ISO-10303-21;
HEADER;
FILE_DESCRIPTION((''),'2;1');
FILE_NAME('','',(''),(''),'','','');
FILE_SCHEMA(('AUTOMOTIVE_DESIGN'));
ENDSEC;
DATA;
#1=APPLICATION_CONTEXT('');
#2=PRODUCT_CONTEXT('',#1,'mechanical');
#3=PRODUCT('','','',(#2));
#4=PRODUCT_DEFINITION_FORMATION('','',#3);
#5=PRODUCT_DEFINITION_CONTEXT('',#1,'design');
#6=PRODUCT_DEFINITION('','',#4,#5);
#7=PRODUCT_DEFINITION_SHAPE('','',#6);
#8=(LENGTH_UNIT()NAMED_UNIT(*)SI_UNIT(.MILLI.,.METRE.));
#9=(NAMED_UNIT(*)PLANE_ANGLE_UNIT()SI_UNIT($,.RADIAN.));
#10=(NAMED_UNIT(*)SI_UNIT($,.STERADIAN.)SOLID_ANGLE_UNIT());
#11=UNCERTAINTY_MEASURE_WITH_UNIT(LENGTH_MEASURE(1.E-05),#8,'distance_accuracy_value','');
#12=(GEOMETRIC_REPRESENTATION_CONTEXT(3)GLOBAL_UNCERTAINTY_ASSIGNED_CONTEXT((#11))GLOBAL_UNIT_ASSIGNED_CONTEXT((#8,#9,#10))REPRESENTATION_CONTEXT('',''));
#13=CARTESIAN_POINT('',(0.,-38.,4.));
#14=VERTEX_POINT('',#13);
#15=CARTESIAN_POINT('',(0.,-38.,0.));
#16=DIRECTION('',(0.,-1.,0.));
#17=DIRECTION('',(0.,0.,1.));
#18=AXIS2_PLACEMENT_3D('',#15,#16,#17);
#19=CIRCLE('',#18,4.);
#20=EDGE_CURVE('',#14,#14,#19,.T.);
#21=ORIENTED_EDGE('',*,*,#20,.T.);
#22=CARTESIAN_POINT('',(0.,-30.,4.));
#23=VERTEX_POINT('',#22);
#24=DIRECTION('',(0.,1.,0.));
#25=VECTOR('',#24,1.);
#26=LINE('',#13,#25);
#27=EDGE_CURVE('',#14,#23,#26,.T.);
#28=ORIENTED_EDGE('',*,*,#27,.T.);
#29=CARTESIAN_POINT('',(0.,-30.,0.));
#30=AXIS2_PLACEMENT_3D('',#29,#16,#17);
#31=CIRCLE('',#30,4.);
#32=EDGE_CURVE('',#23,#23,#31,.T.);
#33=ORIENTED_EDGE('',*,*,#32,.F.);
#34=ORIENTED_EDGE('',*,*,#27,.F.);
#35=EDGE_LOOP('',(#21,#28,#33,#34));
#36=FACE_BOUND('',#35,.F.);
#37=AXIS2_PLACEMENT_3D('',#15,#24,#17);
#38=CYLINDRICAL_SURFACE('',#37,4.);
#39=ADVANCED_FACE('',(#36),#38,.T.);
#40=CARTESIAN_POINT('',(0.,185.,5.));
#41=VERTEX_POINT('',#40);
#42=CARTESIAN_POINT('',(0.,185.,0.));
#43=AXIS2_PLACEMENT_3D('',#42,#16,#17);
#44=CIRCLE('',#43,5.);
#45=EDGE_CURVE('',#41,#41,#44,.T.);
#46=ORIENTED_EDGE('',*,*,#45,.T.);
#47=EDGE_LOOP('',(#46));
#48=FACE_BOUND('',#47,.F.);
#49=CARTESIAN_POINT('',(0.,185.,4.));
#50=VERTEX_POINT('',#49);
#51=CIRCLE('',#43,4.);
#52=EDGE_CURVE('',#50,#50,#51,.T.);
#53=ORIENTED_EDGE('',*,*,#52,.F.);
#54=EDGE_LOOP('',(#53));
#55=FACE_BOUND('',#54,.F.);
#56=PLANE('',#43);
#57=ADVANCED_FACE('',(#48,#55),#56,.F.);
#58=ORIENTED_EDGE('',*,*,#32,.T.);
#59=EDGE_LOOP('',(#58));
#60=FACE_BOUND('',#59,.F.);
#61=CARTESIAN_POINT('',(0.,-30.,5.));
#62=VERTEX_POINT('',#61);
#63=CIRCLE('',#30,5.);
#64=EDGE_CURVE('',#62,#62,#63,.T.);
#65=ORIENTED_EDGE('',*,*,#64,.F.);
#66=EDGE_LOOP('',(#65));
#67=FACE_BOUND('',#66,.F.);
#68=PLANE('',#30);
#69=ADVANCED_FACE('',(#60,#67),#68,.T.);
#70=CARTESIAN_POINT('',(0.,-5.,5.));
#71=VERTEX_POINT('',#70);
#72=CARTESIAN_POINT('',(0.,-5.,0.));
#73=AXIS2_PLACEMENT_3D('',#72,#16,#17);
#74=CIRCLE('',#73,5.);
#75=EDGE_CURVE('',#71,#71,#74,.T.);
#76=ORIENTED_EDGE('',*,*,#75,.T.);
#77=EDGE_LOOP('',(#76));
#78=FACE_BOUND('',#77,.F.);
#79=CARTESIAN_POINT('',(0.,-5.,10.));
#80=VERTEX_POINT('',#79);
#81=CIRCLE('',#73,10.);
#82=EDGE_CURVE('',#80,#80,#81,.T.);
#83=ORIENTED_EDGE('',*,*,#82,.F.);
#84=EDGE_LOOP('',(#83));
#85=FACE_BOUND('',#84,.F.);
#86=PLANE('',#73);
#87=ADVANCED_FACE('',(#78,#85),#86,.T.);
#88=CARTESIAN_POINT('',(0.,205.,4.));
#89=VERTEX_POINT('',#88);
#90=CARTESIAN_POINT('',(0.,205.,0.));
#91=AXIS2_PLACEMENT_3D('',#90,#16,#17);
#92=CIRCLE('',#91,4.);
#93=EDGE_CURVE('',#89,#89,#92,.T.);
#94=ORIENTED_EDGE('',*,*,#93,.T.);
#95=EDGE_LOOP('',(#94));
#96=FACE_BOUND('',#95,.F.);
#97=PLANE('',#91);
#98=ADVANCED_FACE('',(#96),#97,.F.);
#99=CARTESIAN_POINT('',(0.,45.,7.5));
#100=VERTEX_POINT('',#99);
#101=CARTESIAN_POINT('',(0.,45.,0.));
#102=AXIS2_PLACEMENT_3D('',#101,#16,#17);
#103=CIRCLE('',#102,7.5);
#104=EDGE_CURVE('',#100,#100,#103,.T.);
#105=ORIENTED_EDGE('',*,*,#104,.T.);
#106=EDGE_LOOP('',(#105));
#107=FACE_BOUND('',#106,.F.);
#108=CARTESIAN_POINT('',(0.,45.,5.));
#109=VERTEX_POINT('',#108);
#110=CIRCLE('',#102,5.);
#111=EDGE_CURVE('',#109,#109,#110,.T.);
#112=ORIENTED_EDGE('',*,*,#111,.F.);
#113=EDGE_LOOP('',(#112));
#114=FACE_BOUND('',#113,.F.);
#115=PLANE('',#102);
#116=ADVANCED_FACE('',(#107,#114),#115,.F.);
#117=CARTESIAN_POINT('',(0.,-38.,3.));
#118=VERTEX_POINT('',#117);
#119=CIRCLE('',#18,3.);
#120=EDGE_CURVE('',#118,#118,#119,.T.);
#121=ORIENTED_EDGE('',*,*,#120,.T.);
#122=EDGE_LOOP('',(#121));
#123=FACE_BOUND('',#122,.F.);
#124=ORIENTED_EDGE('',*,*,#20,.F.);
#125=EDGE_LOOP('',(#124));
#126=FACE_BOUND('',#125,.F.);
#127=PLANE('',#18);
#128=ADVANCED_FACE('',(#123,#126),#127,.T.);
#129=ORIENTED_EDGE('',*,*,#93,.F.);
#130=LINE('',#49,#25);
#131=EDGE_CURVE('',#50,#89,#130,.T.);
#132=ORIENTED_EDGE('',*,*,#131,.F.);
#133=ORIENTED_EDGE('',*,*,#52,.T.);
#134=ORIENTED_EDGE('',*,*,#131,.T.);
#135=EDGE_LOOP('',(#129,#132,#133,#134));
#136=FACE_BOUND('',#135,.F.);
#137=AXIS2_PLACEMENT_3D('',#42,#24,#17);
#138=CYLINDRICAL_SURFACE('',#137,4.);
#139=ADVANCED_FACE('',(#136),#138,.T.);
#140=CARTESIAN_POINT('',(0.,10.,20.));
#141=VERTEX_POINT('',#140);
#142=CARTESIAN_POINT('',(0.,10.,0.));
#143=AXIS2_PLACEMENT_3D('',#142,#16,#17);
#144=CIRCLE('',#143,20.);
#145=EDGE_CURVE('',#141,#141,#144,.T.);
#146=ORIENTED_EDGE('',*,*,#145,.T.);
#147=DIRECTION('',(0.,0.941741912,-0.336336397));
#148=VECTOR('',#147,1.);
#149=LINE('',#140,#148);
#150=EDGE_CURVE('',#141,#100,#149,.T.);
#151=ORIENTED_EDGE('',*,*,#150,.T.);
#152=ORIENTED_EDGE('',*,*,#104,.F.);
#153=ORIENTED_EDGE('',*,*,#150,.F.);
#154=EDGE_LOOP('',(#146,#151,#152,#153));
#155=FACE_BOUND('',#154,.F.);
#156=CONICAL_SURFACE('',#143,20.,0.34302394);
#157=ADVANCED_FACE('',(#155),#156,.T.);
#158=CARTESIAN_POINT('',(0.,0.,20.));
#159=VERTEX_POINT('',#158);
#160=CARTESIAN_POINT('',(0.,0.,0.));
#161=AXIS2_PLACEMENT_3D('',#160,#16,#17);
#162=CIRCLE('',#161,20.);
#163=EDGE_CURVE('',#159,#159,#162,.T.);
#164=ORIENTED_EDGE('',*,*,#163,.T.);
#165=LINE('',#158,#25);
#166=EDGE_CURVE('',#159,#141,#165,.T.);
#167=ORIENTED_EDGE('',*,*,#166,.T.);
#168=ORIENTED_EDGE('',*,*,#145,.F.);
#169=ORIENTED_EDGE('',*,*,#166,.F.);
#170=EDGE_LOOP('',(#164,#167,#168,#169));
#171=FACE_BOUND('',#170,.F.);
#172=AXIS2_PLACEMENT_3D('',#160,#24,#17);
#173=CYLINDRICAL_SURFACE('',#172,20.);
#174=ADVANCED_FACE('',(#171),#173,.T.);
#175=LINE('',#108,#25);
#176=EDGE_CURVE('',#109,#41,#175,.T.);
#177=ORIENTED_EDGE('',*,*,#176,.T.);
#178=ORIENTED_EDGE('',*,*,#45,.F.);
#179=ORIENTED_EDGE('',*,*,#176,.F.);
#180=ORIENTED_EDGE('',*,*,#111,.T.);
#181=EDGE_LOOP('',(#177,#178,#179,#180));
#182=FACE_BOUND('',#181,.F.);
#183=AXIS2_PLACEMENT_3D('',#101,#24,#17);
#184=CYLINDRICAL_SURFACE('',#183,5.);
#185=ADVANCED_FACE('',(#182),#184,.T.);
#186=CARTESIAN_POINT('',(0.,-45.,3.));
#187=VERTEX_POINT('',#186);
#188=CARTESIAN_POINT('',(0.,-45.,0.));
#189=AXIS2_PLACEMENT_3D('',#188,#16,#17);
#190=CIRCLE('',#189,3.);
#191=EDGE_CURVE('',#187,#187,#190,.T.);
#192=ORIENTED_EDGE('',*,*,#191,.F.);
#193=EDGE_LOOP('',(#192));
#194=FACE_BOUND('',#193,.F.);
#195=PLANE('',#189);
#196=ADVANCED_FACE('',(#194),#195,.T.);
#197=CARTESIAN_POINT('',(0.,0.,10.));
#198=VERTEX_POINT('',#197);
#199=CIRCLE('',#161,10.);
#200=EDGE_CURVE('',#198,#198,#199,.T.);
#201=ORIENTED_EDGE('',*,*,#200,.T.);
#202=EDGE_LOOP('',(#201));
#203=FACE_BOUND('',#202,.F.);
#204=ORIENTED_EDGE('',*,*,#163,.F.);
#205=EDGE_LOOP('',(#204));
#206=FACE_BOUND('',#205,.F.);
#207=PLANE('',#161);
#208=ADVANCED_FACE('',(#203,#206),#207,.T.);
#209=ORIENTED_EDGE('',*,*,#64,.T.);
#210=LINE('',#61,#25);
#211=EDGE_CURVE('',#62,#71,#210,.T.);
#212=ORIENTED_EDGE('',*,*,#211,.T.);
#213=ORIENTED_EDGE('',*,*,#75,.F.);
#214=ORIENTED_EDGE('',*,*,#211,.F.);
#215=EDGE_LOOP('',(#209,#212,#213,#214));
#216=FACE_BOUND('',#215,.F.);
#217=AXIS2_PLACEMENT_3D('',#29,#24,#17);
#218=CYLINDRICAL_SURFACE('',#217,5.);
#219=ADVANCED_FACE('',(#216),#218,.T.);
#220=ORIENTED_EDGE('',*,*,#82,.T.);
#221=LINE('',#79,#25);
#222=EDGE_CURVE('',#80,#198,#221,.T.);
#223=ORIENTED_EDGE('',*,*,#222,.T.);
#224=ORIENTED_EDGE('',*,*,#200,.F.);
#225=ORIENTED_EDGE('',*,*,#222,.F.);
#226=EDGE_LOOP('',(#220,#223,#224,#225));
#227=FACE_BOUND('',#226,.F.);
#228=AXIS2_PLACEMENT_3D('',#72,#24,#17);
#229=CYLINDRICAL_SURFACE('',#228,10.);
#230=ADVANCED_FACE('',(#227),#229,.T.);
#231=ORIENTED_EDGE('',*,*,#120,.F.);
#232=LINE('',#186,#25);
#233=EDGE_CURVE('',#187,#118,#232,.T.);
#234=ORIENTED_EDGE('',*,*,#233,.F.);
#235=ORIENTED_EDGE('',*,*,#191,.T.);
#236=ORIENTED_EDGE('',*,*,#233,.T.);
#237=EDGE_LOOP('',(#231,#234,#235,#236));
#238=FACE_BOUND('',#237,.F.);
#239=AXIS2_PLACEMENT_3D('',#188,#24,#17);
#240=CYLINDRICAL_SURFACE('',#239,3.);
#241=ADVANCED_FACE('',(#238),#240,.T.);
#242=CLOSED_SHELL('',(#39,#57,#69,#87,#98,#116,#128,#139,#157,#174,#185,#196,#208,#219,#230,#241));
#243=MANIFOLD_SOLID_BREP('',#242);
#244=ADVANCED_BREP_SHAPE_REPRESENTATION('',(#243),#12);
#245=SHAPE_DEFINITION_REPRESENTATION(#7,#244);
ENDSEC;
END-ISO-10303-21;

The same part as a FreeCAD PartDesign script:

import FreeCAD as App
import Part
import Sketcher

doc = App.newDocument("Part")
body = doc.addObject("PartDesign::Body", "Body")

sketch1 = body.newObject("Sketcher::SketchObject", "Sketch")
sketch1.AttachmentSupport = (doc.getObject("XY_Plane"), [""])
sketch1.MapMode = "FlatFace"
sketch1.addGeometry(Part.LineSegment(App.Vector(10, 0, 0), App.Vector(20, 0, 0)), False)
sketch1.addGeometry(Part.LineSegment(App.Vector(20, 0, 0), App.Vector(20, 10, 0)), False)
sketch1.addGeometry(Part.LineSegment(App.Vector(20, 10, 0), App.Vector(7.5, 45, 0)), False)
sketch1.addGeometry(Part.LineSegment(App.Vector(7.5, 45, 0), App.Vector(5, 45, 0)), False)
sketch1.addGeometry(Part.LineSegment(App.Vector(5, 45, 0), App.Vector(5, 185, 0)), False)
sketch1.addGeometry(Part.LineSegment(App.Vector(5, 185, 0), App.Vector(4, 185, 0)), False)
sketch1.addGeometry(Part.LineSegment(App.Vector(4, 185, 0), App.Vector(4, 205, 0)), False)
sketch1.addGeometry(Part.LineSegment(App.Vector(4, 205, 0), App.Vector(0, 205, 0)), False)
sketch1.addGeometry(Part.LineSegment(App.Vector(0, 205, 0), App.Vector(0, -45, 0)), False)
sketch1.addGeometry(Part.LineSegment(App.Vector(0, -45, 0), App.Vector(3, -45, 0)), False)
sketch1.addGeometry(Part.LineSegment(App.Vector(3, -45, 0), App.Vector(3, -38, 0)), False)
sketch1.addGeometry(Part.LineSegment(App.Vector(3, -38, 0), App.Vector(4, -38, 0)), False)
sketch1.addGeometry(Part.LineSegment(App.Vector(4, -38, 0), App.Vector(4, -30, 0)), False)
sketch1.addGeometry(Part.LineSegment(App.Vector(4, -30, 0), App.Vector(5, -30, 0)), False)
sketch1.addGeometry(Part.LineSegment(App.Vector(5, -30, 0), App.Vector(5, -5, 0)), False)
sketch1.addGeometry(Part.LineSegment(App.Vector(5, -5, 0), App.Vector(10, -5, 0)), False)
sketch1.addGeometry(Part.LineSegment(App.Vector(10, -5, 0), App.Vector(10, 0, 0)), False)
sketch1.addConstraint(Sketcher.Constraint("Coincident", 0, 2, 1, 1))
sketch1.addConstraint(Sketcher.Constraint("Coincident", 1, 2, 2, 1))
sketch1.addConstraint(Sketcher.Constraint("Coincident", 2, 2, 3, 1))
sketch1.addConstraint(Sketcher.Constraint("Coincident", 3, 2, 4, 1))
sketch1.addConstraint(Sketcher.Constraint("Coincident", 4, 2, 5, 1))
sketch1.addConstraint(Sketcher.Constraint("Coincident", 5, 2, 6, 1))
sketch1.addConstraint(Sketcher.Constraint("Coincident", 6, 2, 7, 1))
sketch1.addConstraint(Sketcher.Constraint("Coincident", 7, 2, 8, 1))
sketch1.addConstraint(Sketcher.Constraint("Coincident", 8, 2, 9, 1))
sketch1.addConstraint(Sketcher.Constraint("Coincident", 9, 2, 10, 1))
sketch1.addConstraint(Sketcher.Constraint("Coincident", 10, 2, 11, 1))
sketch1.addConstraint(Sketcher.Constraint("Coincident", 11, 2, 12, 1))
sketch1.addConstraint(Sketcher.Constraint("Coincident", 12, 2, 13, 1))
sketch1.addConstraint(Sketcher.Constraint("Coincident", 13, 2, 14, 1))
sketch1.addConstraint(Sketcher.Constraint("Coincident", 14, 2, 15, 1))
sketch1.addConstraint(Sketcher.Constraint("Coincident", 15, 2, 16, 1))
sketch1.addConstraint(Sketcher.Constraint("Coincident", 16, 2, 0, 1))
sketch1.addConstraint(Sketcher.Constraint("Horizontal", 0))
sketch1.addConstraint(Sketcher.Constraint("Vertical", 1))
sketch1.addConstraint(Sketcher.Constraint("Horizontal", 3))
sketch1.addConstraint(Sketcher.Constraint("Vertical", 4))
sketch1.addConstraint(Sketcher.Constraint("Horizontal", 5))
sketch1.addConstraint(Sketcher.Constraint("Vertical", 6))
sketch1.addConstraint(Sketcher.Constraint("Horizontal", 7))
sketch1.addConstraint(Sketcher.Constraint("Vertical", 8))
sketch1.addConstraint(Sketcher.Constraint("Horizontal", 9))
sketch1.addConstraint(Sketcher.Constraint("Vertical", 10))
sketch1.addConstraint(Sketcher.Constraint("Horizontal", 11))
sketch1.addConstraint(Sketcher.Constraint("Vertical", 12))
sketch1.addConstraint(Sketcher.Constraint("Horizontal", 13))
sketch1.addConstraint(Sketcher.Constraint("Vertical", 14))
sketch1.addConstraint(Sketcher.Constraint("Horizontal", 15))
sketch1.addConstraint(Sketcher.Constraint("Vertical", 16))
sketch1.addConstraint(Sketcher.Constraint("PointOnObject", 0, 2, -1))
sketch1.addConstraint(Sketcher.Constraint("PointOnObject", 7, 2, -2))
sketch1.addConstraint(Sketcher.Constraint("Vertical", 6, 2, 11, 2))
sketch1.addConstraint(Sketcher.Constraint("Vertical", 4, 2, 13, 2))
sketch1.addConstraint(Sketcher.Constraint("Equal", 5, 11))
sketch1.addConstraint(Sketcher.Constraint("Equal", 0, 1))
sketch1.addConstraint(Sketcher.Constraint("Equal", 15, 16))
sketch1.addConstraint(Sketcher.Constraint("DistanceX", 0, 1, 0, 2, 10.0))
sketch1.addConstraint(Sketcher.Constraint("DistanceX", 5, 2, 5, 1, 1.0))
sketch1.addConstraint(Sketcher.Constraint("DistanceX", 7, 2, 7, 1, 4.0))
sketch1.addConstraint(Sketcher.Constraint("DistanceX", 15, 1, 15, 2, 5.0))
sketch1.addConstraint(Sketcher.Constraint("DistanceY", 4, 1, 4, 2, 140.0))
sketch1.addConstraint(Sketcher.Constraint("DistanceY", 6, 1, 6, 2, 20.0))
sketch1.addConstraint(Sketcher.Constraint("DistanceY", 8, 2, 8, 1, 250.0))
sketch1.addConstraint(Sketcher.Constraint("DistanceY", 10, 1, 10, 2, 7.0))
sketch1.addConstraint(Sketcher.Constraint("DistanceY", 12, 1, 12, 2, 8.0))
sketch1.addConstraint(Sketcher.Constraint("DistanceY", 14, 1, 14, 2, 25.0))
sketch1.addConstraint(Sketcher.Constraint("DistanceX", 3, 2, 3, 1, 2.5))
revolution = body.newObject("PartDesign::Revolution", "Revolution")
revolution.Profile = sketch1
revolution.ReferenceAxis = (sketch1, ["V_Axis"])
revolution.Angle = 360

doc.recompute()
